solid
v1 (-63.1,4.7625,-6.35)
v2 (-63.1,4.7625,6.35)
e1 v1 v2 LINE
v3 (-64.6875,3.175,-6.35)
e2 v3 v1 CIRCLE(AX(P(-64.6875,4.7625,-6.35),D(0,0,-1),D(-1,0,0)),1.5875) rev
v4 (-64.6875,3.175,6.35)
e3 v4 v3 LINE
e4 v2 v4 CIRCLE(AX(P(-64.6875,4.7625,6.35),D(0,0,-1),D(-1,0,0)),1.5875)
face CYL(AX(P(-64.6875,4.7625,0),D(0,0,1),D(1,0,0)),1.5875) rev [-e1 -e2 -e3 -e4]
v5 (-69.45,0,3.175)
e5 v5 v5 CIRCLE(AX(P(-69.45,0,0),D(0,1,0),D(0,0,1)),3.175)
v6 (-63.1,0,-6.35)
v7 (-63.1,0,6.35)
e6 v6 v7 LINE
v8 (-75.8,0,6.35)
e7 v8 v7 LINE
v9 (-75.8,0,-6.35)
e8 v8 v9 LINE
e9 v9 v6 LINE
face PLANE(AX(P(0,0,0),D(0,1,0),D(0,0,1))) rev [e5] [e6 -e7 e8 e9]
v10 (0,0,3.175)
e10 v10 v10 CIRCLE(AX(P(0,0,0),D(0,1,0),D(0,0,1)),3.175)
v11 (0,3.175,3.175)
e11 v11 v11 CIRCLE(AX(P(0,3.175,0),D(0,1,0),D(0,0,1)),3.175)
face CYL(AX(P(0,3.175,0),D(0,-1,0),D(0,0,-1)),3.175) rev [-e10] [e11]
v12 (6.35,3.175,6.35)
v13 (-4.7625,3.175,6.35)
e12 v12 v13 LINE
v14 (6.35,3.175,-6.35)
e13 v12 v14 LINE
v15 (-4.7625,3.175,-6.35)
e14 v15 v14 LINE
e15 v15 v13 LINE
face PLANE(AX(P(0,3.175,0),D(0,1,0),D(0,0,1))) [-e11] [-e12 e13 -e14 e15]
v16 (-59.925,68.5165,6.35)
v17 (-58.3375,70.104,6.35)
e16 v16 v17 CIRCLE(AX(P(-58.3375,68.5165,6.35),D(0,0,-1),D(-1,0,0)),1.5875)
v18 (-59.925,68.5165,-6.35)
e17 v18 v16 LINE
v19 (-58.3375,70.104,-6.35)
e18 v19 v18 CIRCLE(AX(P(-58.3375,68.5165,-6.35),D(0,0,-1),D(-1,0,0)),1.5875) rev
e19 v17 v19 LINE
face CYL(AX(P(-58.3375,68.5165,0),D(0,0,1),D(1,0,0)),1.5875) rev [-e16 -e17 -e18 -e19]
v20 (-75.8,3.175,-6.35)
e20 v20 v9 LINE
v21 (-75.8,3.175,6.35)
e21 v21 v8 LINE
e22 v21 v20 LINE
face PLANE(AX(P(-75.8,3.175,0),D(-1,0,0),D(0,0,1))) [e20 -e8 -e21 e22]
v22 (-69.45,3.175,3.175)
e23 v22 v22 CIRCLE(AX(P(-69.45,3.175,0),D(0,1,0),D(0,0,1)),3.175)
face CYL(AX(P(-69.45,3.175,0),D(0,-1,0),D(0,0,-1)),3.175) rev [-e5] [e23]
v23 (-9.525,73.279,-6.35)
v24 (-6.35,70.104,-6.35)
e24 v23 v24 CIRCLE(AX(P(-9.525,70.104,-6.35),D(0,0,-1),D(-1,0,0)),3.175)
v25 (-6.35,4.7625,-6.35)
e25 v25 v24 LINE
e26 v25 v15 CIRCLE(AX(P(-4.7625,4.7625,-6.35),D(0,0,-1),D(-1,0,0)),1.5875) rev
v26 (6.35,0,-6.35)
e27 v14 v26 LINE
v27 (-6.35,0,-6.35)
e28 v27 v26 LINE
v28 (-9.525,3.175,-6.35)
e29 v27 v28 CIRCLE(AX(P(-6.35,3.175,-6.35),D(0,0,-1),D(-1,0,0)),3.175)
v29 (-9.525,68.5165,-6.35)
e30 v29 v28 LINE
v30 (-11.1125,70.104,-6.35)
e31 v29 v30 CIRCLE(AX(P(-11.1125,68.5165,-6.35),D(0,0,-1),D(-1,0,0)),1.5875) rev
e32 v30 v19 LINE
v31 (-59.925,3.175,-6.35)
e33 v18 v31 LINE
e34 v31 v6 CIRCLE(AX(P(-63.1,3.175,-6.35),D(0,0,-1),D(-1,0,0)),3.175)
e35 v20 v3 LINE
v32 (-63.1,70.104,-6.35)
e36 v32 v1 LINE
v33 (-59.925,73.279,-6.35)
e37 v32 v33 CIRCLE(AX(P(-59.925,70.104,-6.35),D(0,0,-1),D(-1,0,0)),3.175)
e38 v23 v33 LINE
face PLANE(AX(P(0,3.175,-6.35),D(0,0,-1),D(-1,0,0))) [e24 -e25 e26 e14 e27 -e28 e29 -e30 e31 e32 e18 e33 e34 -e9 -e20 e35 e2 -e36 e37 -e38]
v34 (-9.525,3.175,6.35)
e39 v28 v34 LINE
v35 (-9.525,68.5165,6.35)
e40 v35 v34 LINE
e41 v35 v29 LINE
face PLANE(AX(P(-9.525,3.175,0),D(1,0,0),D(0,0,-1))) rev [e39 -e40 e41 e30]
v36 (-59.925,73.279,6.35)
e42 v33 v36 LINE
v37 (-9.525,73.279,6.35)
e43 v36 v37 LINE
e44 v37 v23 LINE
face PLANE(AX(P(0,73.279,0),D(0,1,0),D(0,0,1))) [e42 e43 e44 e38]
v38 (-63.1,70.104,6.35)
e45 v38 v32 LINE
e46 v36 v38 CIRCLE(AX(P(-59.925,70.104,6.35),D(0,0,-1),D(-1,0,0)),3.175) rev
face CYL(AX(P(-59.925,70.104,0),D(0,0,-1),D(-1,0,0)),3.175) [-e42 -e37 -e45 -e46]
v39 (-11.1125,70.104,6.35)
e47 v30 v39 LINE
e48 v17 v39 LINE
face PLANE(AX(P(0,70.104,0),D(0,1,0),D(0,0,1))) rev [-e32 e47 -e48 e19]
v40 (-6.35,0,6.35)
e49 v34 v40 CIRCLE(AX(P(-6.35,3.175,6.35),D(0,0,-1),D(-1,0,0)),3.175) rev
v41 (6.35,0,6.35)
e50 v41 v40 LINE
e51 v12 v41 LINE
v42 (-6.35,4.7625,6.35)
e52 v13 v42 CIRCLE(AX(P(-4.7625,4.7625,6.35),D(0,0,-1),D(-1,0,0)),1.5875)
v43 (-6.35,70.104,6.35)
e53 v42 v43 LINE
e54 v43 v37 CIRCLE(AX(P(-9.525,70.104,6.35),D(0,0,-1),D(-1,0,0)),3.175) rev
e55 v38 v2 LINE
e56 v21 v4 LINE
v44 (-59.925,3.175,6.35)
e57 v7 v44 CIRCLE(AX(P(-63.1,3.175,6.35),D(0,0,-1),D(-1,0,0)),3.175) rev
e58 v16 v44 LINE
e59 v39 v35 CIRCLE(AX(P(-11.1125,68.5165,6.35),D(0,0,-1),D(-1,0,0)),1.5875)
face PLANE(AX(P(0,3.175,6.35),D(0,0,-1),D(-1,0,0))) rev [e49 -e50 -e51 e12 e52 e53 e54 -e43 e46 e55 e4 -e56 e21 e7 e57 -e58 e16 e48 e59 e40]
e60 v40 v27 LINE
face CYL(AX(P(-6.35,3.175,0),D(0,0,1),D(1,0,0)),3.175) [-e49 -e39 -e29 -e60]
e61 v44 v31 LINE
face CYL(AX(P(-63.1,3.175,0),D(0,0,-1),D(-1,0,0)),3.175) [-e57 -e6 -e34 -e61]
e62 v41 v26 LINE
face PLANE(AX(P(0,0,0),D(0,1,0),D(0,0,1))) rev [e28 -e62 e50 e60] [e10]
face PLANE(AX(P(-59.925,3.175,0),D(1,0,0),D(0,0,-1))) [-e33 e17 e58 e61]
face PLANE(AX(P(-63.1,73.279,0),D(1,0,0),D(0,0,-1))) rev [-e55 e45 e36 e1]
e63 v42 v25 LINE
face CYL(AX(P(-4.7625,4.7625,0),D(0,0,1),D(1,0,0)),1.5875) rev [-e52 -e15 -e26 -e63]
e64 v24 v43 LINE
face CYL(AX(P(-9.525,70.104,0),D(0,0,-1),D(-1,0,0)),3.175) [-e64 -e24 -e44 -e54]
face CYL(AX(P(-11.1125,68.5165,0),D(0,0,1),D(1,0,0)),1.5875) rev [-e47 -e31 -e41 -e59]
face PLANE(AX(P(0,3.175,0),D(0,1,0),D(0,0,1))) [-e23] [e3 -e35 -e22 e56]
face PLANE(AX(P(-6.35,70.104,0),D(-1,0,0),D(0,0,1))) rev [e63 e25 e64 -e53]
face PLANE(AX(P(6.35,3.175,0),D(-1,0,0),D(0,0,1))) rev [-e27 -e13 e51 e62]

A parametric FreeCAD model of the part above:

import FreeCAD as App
import Part
import Sketcher

V = App.Vector
Q = App.Units.Quantity


def edges_at(feature, points):
    """Names of the edges that pass closest to the given points."""
    edges = feature.Shape.Edges
    near = lambda p: min(range(len(edges)), key=lambda i: edges[i].distToShape(Part.Vertex(*p))[0])
    return sorted({f"Edge{near(p) + 1}" for p in points})


def add_polygon(sketch, points):
    """Adds a closed chain of lines whose ends are joined by coincident constraints."""
    first, n = sketch.GeometryCount, len(points)
    for a, b in zip(points, points[1:] + points[:1]):
        sketch.addGeometry(Part.LineSegment(App.Vector(*a, 0), App.Vector(*b, 0)), False)
    for i in range(n):
        sketch.addConstraint(Sketcher.Constraint("Coincident", first + i, 2, first + (i + 1) % n, 1))

doc = App.newDocument("Part")
body = doc.addObject("PartDesign::Body", "Body")

sketch1 = body.newObject("Sketcher::SketchObject", "Sketch")
sketch1.AttachmentSupport = (doc.getObject("XZ_Plane"), [""])
sketch1.MapMode = "FlatFace"
add_polygon(sketch1, [(-9.5, -6.3), (-9.5, 6.3), (6.3, 6.3), (6.3, -6.3)])
sketch1.addGeometry(Part.Circle(V(0, 0, 0), V(0, 0, 1), 3.2), False)
sketch1.addConstraint([
    Sketcher.Constraint("Vertical", 0),
    Sketcher.Constraint("Horizontal", 1),
    Sketcher.Constraint("Vertical", 2),
    Sketcher.Constraint("Horizontal", 3),
    Sketcher.Constraint("Coincident", 4, 3, -1, 1),
    Sketcher.Constraint("Diameter", 4, Q("0.25 in")),
    Sketcher.Constraint("DistanceY", 0, 1, 0, 2, Q("0.5 in")),
    Sketcher.Constraint("DistanceX", 1, 1, 1, 2, Q("0.625 in")),
    Sketcher.Constraint("DistanceY", -1, 1, 0, 2, Q("0.25 in")),
    Sketcher.Constraint("DistanceX", -1, 1, 1, 2, Q("0.25 in")),
])
pad1 = body.newObject("PartDesign::Pad", "Pad")
pad1.Profile = sketch1
pad1.Length = Q("0.125 in")
pad1.Reversed = True
body2 = doc.addObject("PartDesign::Body", "Body001")

sketch2 = body2.newObject("Sketcher::SketchObject", "Sketch001")
sketch2.AttachmentSupport = (doc.getObject("XZ_Plane001"), [""])
sketch2.MapMode = "FlatFace"
add_polygon(sketch2, [(-75.8, -6.3), (-75.8, 6.3), (-59.9, 6.3), (-59.9, -6.3)])
sketch2.addGeometry(Part.Circle(V(-69.5, 0, 0), V(0, 0, 1), 3.2), False)
sketch2.addConstraint([
    Sketcher.Constraint("Vertical", 0),
    Sketcher.Constraint("Horizontal", 1),
    Sketcher.Constraint("Vertical", 2),
    Sketcher.Constraint("Horizontal", 3),
    Sketcher.Constraint("PointOnObject", 4, 3, -1),
    Sketcher.Constraint("Diameter", 4, Q("0.25 in")),
    Sketcher.Constraint("DistanceY", 0, 1, 0, 2, Q("0.5 in")),
    Sketcher.Constraint("DistanceX", 1, 1, 1, 2, Q("0.625 in")),
    Sketcher.Constraint("DistanceY", -1, 1, 0, 2, Q("0.25 in")),
    Sketcher.Constraint("DistanceX", 0, 2, 4, 3, Q("0.25 in")),
    Sketcher.Constraint("DistanceX", 4, 3, -1, 1, Q("69.45 mm")),
])
pad2 = body2.newObject("PartDesign::Pad", "Pad001")
pad2.Profile = sketch2
pad2.Length = Q("0.125 in")
pad2.Reversed = True
body.AllowCompound = True
doc.recompute()

boolean = body.newObject("PartDesign::Boolean", "Boolean")
boolean.Type = "Fuse"
boolean.addObjects([body2])

sketch3 = body.newObject("Sketcher::SketchObject", "Sketch002")
sketch3.AttachmentSupport = (doc.getObject("XZ_Plane"), [""])
sketch3.MapMode = "FlatFace"
sketch3.AttachmentOffset = App.Placement(V(0, 0, -0.125 * 25.4), App.Rotation())
add_polygon(sketch3, [(-63.1, -6.3), (-63.1, 6.3), (-59.9, 6.3), (-59.9, -6.3)])
add_polygon(sketch3, [(-9.5, -6.3), (-9.5, 6.3), (-6.3, 6.3), (-6.3, -6.3)])
sketch3.addConstraint([
    Sketcher.Constraint("Vertical", 0),
    Sketcher.Constraint("Horizontal", 1),
    Sketcher.Constraint("Vertical", 2),
    Sketcher.Constraint("Horizontal", 3),
    Sketcher.Constraint("Vertical", 4),
    Sketcher.Constraint("Horizontal", 5),
    Sketcher.Constraint("Vertical", 6),
    Sketcher.Constraint("Horizontal", 7),
    Sketcher.Constraint("Horizontal", 1, 2, 4, 2),
    Sketcher.Constraint("Horizontal", 3, 2, 6, 2),
    Sketcher.Constraint("Equal", 3, 5),
    Sketcher.Constraint("DistanceY", 0, 1, 0, 2, Q("0.5 in")),
    Sketcher.Constraint("DistanceX", 1, 1, 1, 2, Q("0.125 in")),
    Sketcher.Constraint("DistanceY", -1, 1, 0, 2, Q("0.25 in")),
    Sketcher.Constraint("DistanceX", 5, 2, -1, 1, Q("0.25 in")),
    Sketcher.Constraint("DistanceX", 0, 2, -1, 1, Q("63.1 mm")),
])
pad3 = body.newObject("PartDesign::Pad", "Pad002")
pad3.Profile = sketch3
pad3.Length = Q("2.76 in")
pad3.Reversed = True

sketch4 = body.newObject("Sketcher::SketchObject", "Sketch003")
sketch4.AttachmentSupport = (doc.getObject("XZ_Plane"), [""])
sketch4.MapMode = "FlatFace"
sketch4.AttachmentOffset = App.Placement(V(0, 0, -2.885 * 25.4), App.Rotation())
add_polygon(sketch4, [(-63, -6), (-63, 6), (-6, 6), (-6, -6)])
sketch4.addConstraint([
    Sketcher.Constraint("Vertical", 0),
    Sketcher.Constraint("Horizontal", 1),
    Sketcher.Constraint("Vertical", 2),
    Sketcher.Constraint("Horizontal", 3),
    Sketcher.Constraint("DistanceY", 0, 1, 0, 2, Q("0.5 in")),
    Sketcher.Constraint("DistanceY", -1, 1, 0, 2, Q("0.25 in")),
    Sketcher.Constraint("DistanceX", 1, 2, -1, 1, Q("0.25 in")),
    Sketcher.Constraint("DistanceX", 1, 1, 1, 2, Q("56.75 mm")),
])
pad4 = body.newObject("PartDesign::Pad", "Pad003")
pad4.Profile = sketch4
pad4.Length = Q("0.125 in")
doc.recompute()

fillet = body.newObject("PartDesign::Fillet", "Fillet")
fillet.Base = (pad4, edges_at(pad4, [
    (-63.1, 73.279, 0),
    (-6.35, 73.279, 0),
    (-9.525, 0, 0),
    (-59.925, 0, 0),
]))
fillet.Radius = Q("0.125 in")
doc.recompute()

fillet2 = body.newObject("PartDesign::Fillet", "Fillet001")
fillet2.Base = (fillet, edges_at(fillet, [
    (-63.1, 3.175, 0),
    (-59.925, 70.104, 0),
    (-9.525, 70.104, 0),
    (-6.35, 3.175, 0),
]))
fillet2.Radius = Q("0.0625 in")

doc.recompute()
